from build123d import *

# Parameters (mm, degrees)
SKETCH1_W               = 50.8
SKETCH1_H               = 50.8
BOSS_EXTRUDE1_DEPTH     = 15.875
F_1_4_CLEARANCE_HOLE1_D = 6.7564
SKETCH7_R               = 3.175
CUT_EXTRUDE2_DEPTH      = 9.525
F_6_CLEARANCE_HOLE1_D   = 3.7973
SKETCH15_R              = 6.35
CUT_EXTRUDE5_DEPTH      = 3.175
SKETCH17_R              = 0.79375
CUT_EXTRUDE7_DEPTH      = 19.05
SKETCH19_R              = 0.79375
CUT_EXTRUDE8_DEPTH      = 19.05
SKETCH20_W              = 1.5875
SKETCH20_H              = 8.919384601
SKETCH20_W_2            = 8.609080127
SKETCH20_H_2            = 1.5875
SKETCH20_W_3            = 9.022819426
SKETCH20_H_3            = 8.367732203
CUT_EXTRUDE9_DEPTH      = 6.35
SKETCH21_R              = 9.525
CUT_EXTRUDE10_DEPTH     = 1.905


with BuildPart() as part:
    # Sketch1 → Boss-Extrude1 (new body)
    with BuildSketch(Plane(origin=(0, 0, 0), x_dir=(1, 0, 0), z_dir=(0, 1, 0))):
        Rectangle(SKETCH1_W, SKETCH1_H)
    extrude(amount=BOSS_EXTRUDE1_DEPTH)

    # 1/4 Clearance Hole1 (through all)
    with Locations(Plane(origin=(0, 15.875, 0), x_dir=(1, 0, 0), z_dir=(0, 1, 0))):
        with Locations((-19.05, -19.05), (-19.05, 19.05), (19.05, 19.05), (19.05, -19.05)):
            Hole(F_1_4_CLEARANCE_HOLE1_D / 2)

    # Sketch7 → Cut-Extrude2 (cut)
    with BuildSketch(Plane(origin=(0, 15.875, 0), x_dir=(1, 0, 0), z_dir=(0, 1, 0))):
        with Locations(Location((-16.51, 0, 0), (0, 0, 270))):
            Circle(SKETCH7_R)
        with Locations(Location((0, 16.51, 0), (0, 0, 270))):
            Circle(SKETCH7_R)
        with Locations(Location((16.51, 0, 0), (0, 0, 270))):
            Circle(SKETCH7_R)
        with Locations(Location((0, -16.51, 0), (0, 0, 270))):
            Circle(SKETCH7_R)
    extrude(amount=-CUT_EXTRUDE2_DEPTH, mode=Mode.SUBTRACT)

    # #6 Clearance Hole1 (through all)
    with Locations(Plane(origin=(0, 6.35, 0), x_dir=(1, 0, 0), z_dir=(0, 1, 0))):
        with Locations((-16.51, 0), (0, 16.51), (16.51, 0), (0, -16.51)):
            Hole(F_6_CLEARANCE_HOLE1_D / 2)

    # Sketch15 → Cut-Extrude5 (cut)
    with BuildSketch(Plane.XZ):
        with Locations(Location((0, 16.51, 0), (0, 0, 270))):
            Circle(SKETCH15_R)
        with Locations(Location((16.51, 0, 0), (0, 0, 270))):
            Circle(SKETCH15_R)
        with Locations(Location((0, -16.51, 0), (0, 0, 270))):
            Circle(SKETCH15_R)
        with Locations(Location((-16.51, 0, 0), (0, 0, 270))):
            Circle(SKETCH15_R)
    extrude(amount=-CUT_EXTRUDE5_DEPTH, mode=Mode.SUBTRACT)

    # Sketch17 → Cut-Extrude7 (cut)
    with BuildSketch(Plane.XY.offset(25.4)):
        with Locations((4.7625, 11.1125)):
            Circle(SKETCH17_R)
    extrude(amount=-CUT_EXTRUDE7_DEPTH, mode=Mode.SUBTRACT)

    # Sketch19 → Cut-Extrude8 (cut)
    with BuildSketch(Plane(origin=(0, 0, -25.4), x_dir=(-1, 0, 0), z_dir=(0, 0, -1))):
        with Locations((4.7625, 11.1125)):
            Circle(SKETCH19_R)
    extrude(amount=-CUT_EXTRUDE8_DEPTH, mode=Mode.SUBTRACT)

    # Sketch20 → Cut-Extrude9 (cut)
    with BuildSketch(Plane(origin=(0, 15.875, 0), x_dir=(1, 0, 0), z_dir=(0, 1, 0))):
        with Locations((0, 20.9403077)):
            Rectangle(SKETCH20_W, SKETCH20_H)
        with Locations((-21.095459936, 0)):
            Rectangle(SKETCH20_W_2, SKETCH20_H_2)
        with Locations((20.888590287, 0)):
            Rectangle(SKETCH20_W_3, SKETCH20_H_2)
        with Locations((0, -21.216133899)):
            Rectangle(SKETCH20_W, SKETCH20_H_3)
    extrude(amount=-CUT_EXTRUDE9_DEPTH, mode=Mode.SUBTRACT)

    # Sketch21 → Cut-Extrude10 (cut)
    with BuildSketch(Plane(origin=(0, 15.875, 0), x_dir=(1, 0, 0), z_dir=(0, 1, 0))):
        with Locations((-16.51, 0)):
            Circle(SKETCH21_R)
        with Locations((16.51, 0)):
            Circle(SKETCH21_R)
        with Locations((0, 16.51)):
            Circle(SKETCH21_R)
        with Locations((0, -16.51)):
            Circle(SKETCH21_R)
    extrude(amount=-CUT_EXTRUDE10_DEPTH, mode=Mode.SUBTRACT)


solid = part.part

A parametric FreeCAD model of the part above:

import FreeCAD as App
import Part
import Sketcher

V = App.Vector
Q = App.Units.Quantity

doc = App.newDocument("Part")
body = doc.addObject("PartDesign::Body", "Body")

# Sketch on XZ plane
sketch1 = body.newObject("Sketcher::SketchObject", "Sketch")
sketch1.AttachmentSupport = (doc.getObject("XZ_Plane"), [""])
sketch1.MapMode = "FlatFace"
sketch1.addGeometry(Part.LineSegment(V(-25, -25, 0), V(-25, 25, 0)), False)
sketch1.addGeometry(Part.LineSegment(V(-25, 25, 0), V(25, 25, 0)), False)
sketch1.addGeometry(Part.LineSegment(V(25, 25, 0), V(25, -25, 0)), False)
sketch1.addGeometry(Part.LineSegment(V(25, -25, 0), V(-25, -25, 0)), False)
sketch1.addConstraint(Sketcher.Constraint("Coincident", 0, 2, 1, 1))
sketch1.addConstraint(Sketcher.Constraint("Coincident", 1, 2, 2, 1))
sketch1.addConstraint(Sketcher.Constraint("Coincident", 2, 2, 3, 1))
sketch1.addConstraint(Sketcher.Constraint("Coincident", 3, 2, 0, 1))
sketch1.addConstraint(Sketcher.Constraint("Vertical", 0))
sketch1.addConstraint(Sketcher.Constraint("Horizontal", 1))
sketch1.addConstraint(Sketcher.Constraint("Vertical", 2))
sketch1.addConstraint(Sketcher.Constraint("Horizontal", 3))
sketch1.addConstraint(Sketcher.Constraint("Symmetric", 0, 2, 2, 2, -1, 1))
sketch1.addConstraint(Sketcher.Constraint("Equal", 3, 0))
sketch1.addConstraint(Sketcher.Constraint("DistanceX", 1, 1, 1, 2, Q("2 in")))
pad1 = body.newObject("PartDesign::Pad", "Pad")
pad1.Profile = sketch1
pad1.Length = Q("0.625 in")
pad1.Reversed = True

# Sketch on XZ plane
sketch2 = body.newObject("Sketcher::SketchObject", "Sketch001")
sketch2.AttachmentSupport = (doc.getObject("XZ_Plane"), [""])
sketch2.MapMode = "FlatFace"
sketch2.AttachmentOffset = App.Placement(V(0, 0, -0.625 * 25.4), App.Rotation())
sketch2.addGeometry(Part.Circle(V(-19.1, 19.1, 0), V(0, 0, 1), 3.4), False)
sketch2.addGeometry(Part.Circle(V(-19.1, -19.1, 0), V(0, 0, 1), 3.4), False)
sketch2.addGeometry(Part.Circle(V(19.1, -19.1, 0), V(0, 0, 1), 3.4), False)
sketch2.addGeometry(Part.Circle(V(19.1, 19.1, 0), V(0, 0, 1), 3.4), False)
sketch2.addConstraint(Sketcher.Constraint("Equal", 0, 1))
sketch2.addConstraint(Sketcher.Constraint("Equal", 1, 2))
sketch2.addConstraint(Sketcher.Constraint("Equal", 2, 3))
sketch2.addConstraint(Sketcher.Constraint("Symmetric", 0, 3, 2, 3, -1, 1))
sketch2.addConstraint(Sketcher.Constraint("Symmetric", 1, 3, 3, 3, -1, 1))
sketch2.addConstraint(Sketcher.Constraint("Symmetric", 1, 3, 2, 3, -2))
sketch2.addConstraint(Sketcher.Constraint("Diameter", 0, Q("0.266 in")))
sketch2.addConstraint(Sketcher.Constraint("DistanceY", 1, 3, 0, 3, Q("1.5 in")))
sketch2.addConstraint(Sketcher.Constraint("DistanceX", 1, 3, 2, 3, Q("1.5 in")))
doc.recompute()
hole = body.newObject("PartDesign::Hole", "Hole")
hole.Profile = sketch2
hole.ThreadType = "None"
hole.Diameter = Q("0.266 in")
hole.DepthType = "ThroughAll"
hole.Reversed = True

# Sketch on XZ plane
sketch3 = body.newObject("Sketcher::SketchObject", "Sketch002")
sketch3.AttachmentSupport = (doc.getObject("XZ_Plane"), [""])
sketch3.MapMode = "FlatFace"
sketch3.AttachmentOffset = App.Placement(V(0, 0, -0.625 * 25.4), App.Rotation())
sketch3.addGeometry(Part.Circle(V(-16.5, 0, 0), V(0, 0, 1), 3.2), False)
sketch3.addGeometry(Part.Circle(V(0, -16.5, 0), V(0, 0, 1), 3.2), False)
sketch3.addGeometry(Part.Circle(V(16.5, 0, 0), V(0, 0, 1), 3.2), False)
sketch3.addGeometry(Part.Circle(V(0, 16.5, 0), V(0, 0, 1), 3.2), False)
sketch3.addConstraint(Sketcher.Constraint("Equal", 0, 1))
sketch3.addConstraint(Sketcher.Constraint("Equal", 1, 2))
sketch3.addConstraint(Sketcher.Constraint("Equal", 2, 3))
sketch3.addConstraint(Sketcher.Constraint("Symmetric", 0, 3, 2, 3, -1, 1))
sketch3.addConstraint(Sketcher.Constraint("Symmetric", 1, 3, 3, 3, -1, 1))
sketch3.addConstraint(Sketcher.Constraint("PointOnObject", 0, 3, -1))
sketch3.addConstraint(Sketcher.Constraint("PointOnObject", 1, 3, -2))
sketch3.addConstraint(Sketcher.Constraint("Diameter", 0, Q("0.25 in")))
sketch3.addConstraint(Sketcher.Constraint("DistanceX", 0, 3, 2, 3, Q("1.3 in")))
sketch3.addConstraint(Sketcher.Constraint("DistanceY", 1, 3, 3, 3, Q("1.3 in")))
pocket1 = body.newObject("PartDesign::Pocket", "Pocket")
pocket1.Profile = sketch3
pocket1.Length = Q("0.375 in")
pocket1.Reversed = True

# Sketch on XZ plane
sketch4 = body.newObject("Sketcher::SketchObject", "Sketch003")
sketch4.AttachmentSupport = (doc.getObject("XZ_Plane"), [""])
sketch4.MapMode = "FlatFace"
sketch4.AttachmentOffset = App.Placement(V(0, 0, -0.25 * 25.4), App.Rotation())
sketch4.addGeometry(Part.Circle(V(-16.5, 0, 0), V(0, 0, 1), 1.9), False)
sketch4.addGeometry(Part.Circle(V(0, -16.5, 0), V(0, 0, 1), 1.9), False)
sketch4.addGeometry(Part.Circle(V(16.5, 0, 0), V(0, 0, 1), 1.9), False)
sketch4.addGeometry(Part.Circle(V(0, 16.5, 0), V(0, 0, 1), 1.9), False)
sketch4.addConstraint(Sketcher.Constraint("Equal", 0, 1))
sketch4.addConstraint(Sketcher.Constraint("Equal", 1, 2))
sketch4.addConstraint(Sketcher.Constraint("Equal", 2, 3))
sketch4.addConstraint(Sketcher.Constraint("Symmetric", 0, 3, 2, 3, -1, 1))
sketch4.addConstraint(Sketcher.Constraint("Symmetric", 1, 3, 3, 3, -1, 1))
sketch4.addConstraint(Sketcher.Constraint("PointOnObject", 0, 3, -1))
sketch4.addConstraint(Sketcher.Constraint("PointOnObject", 1, 3, -2))
sketch4.addConstraint(Sketcher.Constraint("Diameter", 0, Q("0.1495 in")))
sketch4.addConstraint(Sketcher.Constraint("DistanceX", 0, 3, 2, 3, Q("1.3 in")))
sketch4.addConstraint(Sketcher.Constraint("DistanceY", 1, 3, 3, 3, Q("1.3 in")))
doc.recompute()
hole2 = body.newObject("PartDesign::Hole", "Hole001")
hole2.Profile = sketch4
hole2.ThreadType = "None"
hole2.Diameter = Q("0.1495 in")
hole2.DepthType = "ThroughAll"
hole2.Reversed = True

# Sketch on XZ plane
sketch5 = body.newObject("Sketcher::SketchObject", "Sketch004")
sketch5.AttachmentSupport = (doc.getObject("XZ_Plane"), [""])
sketch5.MapMode = "FlatFace"
sketch5.addGeometry(Part.Circle(V(0, 17, 0), V(0, 0, 1), 6), False)
sketch5.addGeometry(Part.Circle(V(17, 0, 0), V(0, 0, 1), 6), False)
sketch5.addGeometry(Part.Circle(V(0, -17, 0), V(0, 0, 1), 6), False)
sketch5.addGeometry(Part.Circle(V(-17, 0, 0), V(0, 0, 1), 6), False)
sketch5.addConstraint(Sketcher.Constraint("Equal", 0, 1))
sketch5.addConstraint(Sketcher.Constraint("Equal", 1, 2))
sketch5.addConstraint(Sketcher.Constraint("Equal", 2, 3))
sketch5.addConstraint(Sketcher.Constraint("Symmetric", 0, 3, 2, 3, -1, 1))
sketch5.addConstraint(Sketcher.Constraint("Symmetric", 1, 3, 3, 3, -1, 1))
sketch5.addConstraint(Sketcher.Constraint("PointOnObject", 0, 3, -2))
sketch5.addConstraint(Sketcher.Constraint("PointOnObject", 1, 3, -1))
sketch5.addConstraint(Sketcher.Constraint("Diameter", 0, Q("0.5 in")))
sketch5.addConstraint(Sketcher.Constraint("DistanceY", 2, 3, 0, 3, Q("1.3 in")))
sketch5.addConstraint(Sketcher.Constraint("DistanceX", 3, 3, 1, 3, Q("1.3 in")))
pocket2 = body.newObject("PartDesign::Pocket", "Pocket001")
pocket2.Profile = sketch5
pocket2.Length = Q("0.125 in")

# Sketch on XY plane
sketch6 = body.newObject("Sketcher::SketchObject", "Sketch005")
sketch6.AttachmentSupport = (doc.getObject("XY_Plane"), [""])
sketch6.MapMode = "FlatFace"
sketch6.AttachmentOffset = App.Placement(V(0, 0, 1 * 25.4), App.Rotation())
sketch6.addGeometry(Part.Circle(V(4.8, 11.1, 0), V(0, 0, 1), 0.8), False)
sketch6.addConstraint(Sketcher.Constraint("Diameter", 0, Q("0.0625 in")))
sketch6.addConstraint(Sketcher.Constraint("DistanceX", -1, 1, 0, 3, Q("0.1875 in")))
sketch6.addConstraint(Sketcher.Constraint("DistanceY", -1, 1, 0, 3, Q("0.4375 in")))
pocket3 = body.newObject("PartDesign::Pocket", "Pocket002")
pocket3.Profile = sketch6
pocket3.Length = Q("0.75 in")

# Sketch on XY plane
sketch7 = body.newObject("Sketcher::SketchObject", "Sketch006")
sketch7.AttachmentSupport = (doc.getObject("XY_Plane"), [""])
sketch7.MapMode = "FlatFace"
sketch7.AttachmentOffset = App.Placement(V(0, 0, -1 * 25.4), App.Rotation())
sketch7.addGeometry(Part.Circle(V(-4.8, 11.1, 0), V(0, 0, 1), 0.8), False)
sketch7.addConstraint(Sketcher.Constraint("Diameter", 0, Q("0.0625 in")))
sketch7.addConstraint(Sketcher.Constraint("DistanceX", 0, 3, -1, 1, Q("0.1875 in")))
sketch7.addConstraint(Sketcher.Constraint("DistanceY", -1, 1, 0, 3, Q("0.4375 in")))
pocket4 = body.newObject("PartDesign::Pocket", "Pocket003")
pocket4.Profile = sketch7
pocket4.Length = Q("0.75 in")
pocket4.Reversed = True

# Sketch on XZ plane
sketch8 = body.newObject("Sketcher::SketchObject", "Sketch007")
sketch8.AttachmentSupport = (doc.getObject("XZ_Plane"), [""])
sketch8.MapMode = "FlatFace"
sketch8.AttachmentOffset = App.Placement(V(0, 0, -0.625 * 25.4), App.Rotation())
sketch8.addGeometry(Part.LineSegment(V(-0.8, -25.4, 0), V(-0.8, -16.5, 0)), False)
sketch8.addGeometry(Part.LineSegment(V(-0.8, -16.5, 0), V(0.8, -16.5, 0)), False)
sketch8.addGeometry(Part.LineSegment(V(0.8, -16.5, 0), V(0.8, -25.4, 0)), False)
sketch8.addGeometry(Part.LineSegment(V(0.8, -25.4, 0), V(-0.8, -25.4, 0)), False)
sketch8.addGeometry(Part.LineSegment(V(-25.4, -0.8, 0), V(-25.4, 0.8, 0)), False)
sketch8.addGeometry(Part.LineSegment(V(-25.4, 0.8, 0), V(-16.8, 0.8, 0)), False)
sketch8.addGeometry(Part.LineSegment(V(-16.8, 0.8, 0), V(-16.8, -0.8, 0)), False)
sketch8.addGeometry(Part.LineSegment(V(-16.8, -0.8, 0), V(-25.4, -0.8, 0)), False)
sketch8.addGeometry(Part.LineSegment(V(16.4, -0.8, 0), V(16.4, 0.8, 0)), False)
sketch8.addGeometry(Part.LineSegment(V(16.4, 0.8, 0), V(25.4, 0.8, 0)), False)
sketch8.addGeometry(Part.LineSegment(V(25.4, 0.8, 0), V(25.4, -0.8, 0)), False)
sketch8.addGeometry(Part.LineSegment(V(25.4, -0.8, 0), V(16.4, -0.8, 0)), False)
sketch8.addGeometry(Part.LineSegment(V(-0.8, 17, 0), V(-0.8, 25.4, 0)), False)
sketch8.addGeometry(Part.LineSegment(V(-0.8, 25.4, 0), V(0.8, 25.4, 0)), False)
sketch8.addGeometry(Part.LineSegment(V(0.8, 25.4, 0), V(0.8, 17, 0)), False)
sketch8.addGeometry(Part.LineSegment(V(0.8, 17, 0), V(-0.8, 17, 0)), False)
sketch8.addConstraint(Sketcher.Constraint("Coincident", 0, 2, 1, 1))
sketch8.addConstraint(Sketcher.Constraint("Coincident", 1, 2, 2, 1))
sketch8.addConstraint(Sketcher.Constraint("Coincident", 2, 2, 3, 1))
sketch8.addConstraint(Sketcher.Constraint("Coincident", 3, 2, 0, 1))
sketch8.addConstraint(Sketcher.Constraint("Coincident", 4, 2, 5, 1))
sketch8.addConstraint(Sketcher.Constraint("Coincident", 5, 2, 6, 1))
sketch8.addConstraint(Sketcher.Constraint("Coincident", 6, 2, 7, 1))
sketch8.addConstraint(Sketcher.Constraint("Coincident", 7, 2, 4, 1))
sketch8.addConstraint(Sketcher.Constraint("Coincident", 8, 2, 9, 1))
sketch8.addConstraint(Sketcher.Constraint("Coincident", 9, 2, 10, 1))
sketch8.addConstraint(Sketcher.Constraint("Coincident", 10, 2, 11, 1))
sketch8.addConstraint(Sketcher.Constraint("Coincident", 11, 2, 8, 1))
sketch8.addConstraint(Sketcher.Constraint("Coincident", 12, 2, 13, 1))
sketch8.addConstraint(Sketcher.Constraint("Coincident", 13, 2, 14, 1))
sketch8.addConstraint(Sketcher.Constraint("Coincident", 14, 2, 15, 1))
sketch8.addConstraint(Sketcher.Constraint("Coincident", 15, 2, 12, 1))
sketch8.addConstraint(Sketcher.Constraint("Vertical", 0))
sketch8.addConstraint(Sketcher.Constraint("Horizontal", 1))
sketch8.addConstraint(Sketcher.Constraint("Vertical", 2))
sketch8.addConstraint(Sketcher.Constraint("Horizontal", 3))
sketch8.addConstraint(Sketcher.Constraint("Vertical", 4))
sketch8.addConstraint(Sketcher.Constraint("Horizontal", 5))
sketch8.addConstraint(Sketcher.Constraint("Vertical", 6))
sketch8.addConstraint(Sketcher.Constraint("Horizontal", 7))
sketch8.addConstraint(Sketcher.Constraint("Vertical", 8))
sketch8.addConstraint(Sketcher.Constraint("Horizontal", 9))
sketch8.addConstraint(Sketcher.Constraint("Vertical", 10))
sketch8.addConstraint(Sketcher.Constraint("Horizontal", 11))
sketch8.addConstraint(Sketcher.Constraint("Vertical", 12))
sketch8.addConstraint(Sketcher.Constraint("Horizontal", 13))
sketch8.addConstraint(Sketcher.Constraint("Vertical", 14))
sketch8.addConstraint(Sketcher.Constraint("Horizontal", 15))
sketch8.addConstraint(Sketcher.Constraint("Symmetric", 7, 2, 9, 2, -1, 1))
sketch8.addConstraint(Sketcher.Constraint("Symmetric", 2, 2, 12, 2, -1, 1))
sketch8.addConstraint(Sketcher.Constraint("Horizontal", 5, 2, 8, 2))
sketch8.addConstraint(Sketcher.Constraint("Horizontal", 7, 2, 10, 2))
sketch8.addConstraint(Sketcher.Constraint("Vertical", 3, 2, 12, 2))
sketch8.addConstraint(Sketcher.Constraint("Vertical", 2, 2, 13, 2))
sketch8.addConstraint(Sketcher.Constraint("Equal", 15, 4))
sketch8.addConstraint(Sketcher.Constraint("DistanceY", 2, 2, -1, 1, Q("1 in")))
sketch8.addConstraint(Sketcher.Constraint("DistanceX", 4, 2, -1, 1, Q("1 in")))
sketch8.addConstraint(Sketcher.Constraint("DistanceX", 1, 1, 1, 2, Q("0.0625 in")))
sketch8.addConstraint(Sketcher.Constraint("DistanceX", 5, 1, 5, 2, Q("8.60908 mm")))
sketch8.addConstraint(Sketcher.Constraint("DistanceX", 9, 1, 9, 2, Q("9.022819 mm")))
sketch8.addConstraint(Sketcher.Constraint("DistanceY", 0, 1, 0, 2, Q("8.919385 mm")))
sketch8.addConstraint(Sketcher.Constraint("DistanceY", 12, 1, 12, 2, Q("8.367732 mm")))
pocket5 = body.newObject("PartDesign::Pocket", "Pocket004")
pocket5.Profile = sketch8
pocket5.Length = Q("0.25 in")
pocket5.Reversed = True

# Sketch on XZ plane
sketch9 = body.newObject("Sketcher::SketchObject", "Sketch008")
sketch9.AttachmentSupport = (doc.getObject("XZ_Plane"), [""])
sketch9.MapMode = "FlatFace"
sketch9.AttachmentOffset = App.Placement(V(0, 0, -0.625 * 25.4), App.Rotation())
sketch9.addGeometry(Part.Circle(V(-17, 0, 0), V(0, 0, 1), 10), False)
sketch9.addGeometry(Part.Circle(V(17, 0, 0), V(0, 0, 1), 10), False)
sketch9.addGeometry(Part.Circle(V(0, -17, 0), V(0, 0, 1), 10), False)
sketch9.addGeometry(Part.Circle(V(0, 17, 0), V(0, 0, 1), 10), False)
sketch9.addConstraint(Sketcher.Constraint("Equal", 0, 1))
sketch9.addConstraint(Sketcher.Constraint("Equal", 1, 2))
sketch9.addConstraint(Sketcher.Constraint("Equal", 2, 3))
sketch9.addConstraint(Sketcher.Constraint("Symmetric", 0, 3, 1, 3, -1, 1))
sketch9.addConstraint(Sketcher.Constraint("Symmetric", 2, 3, 3, 3, -1, 1))
sketch9.addConstraint(Sketcher.Constraint("PointOnObject", 0, 3, -1))
sketch9.addConstraint(Sketcher.Constraint("PointOnObject", 2, 3, -2))
sketch9.addConstraint(Sketcher.Constraint("Diameter", 0, Q("0.75 in")))
sketch9.addConstraint(Sketcher.Constraint("DistanceX", 0, 3, 1, 3, Q("1.3 in")))
sketch9.addConstraint(Sketcher.Constraint("DistanceY", 2, 3, 3, 3, Q("1.3 in")))
pocket6 = body.newObject("PartDesign::Pocket", "Pocket005")
pocket6.Profile = sketch9
pocket6.Length = Q("0.075 in")
pocket6.Reversed = True

doc.recompute()
